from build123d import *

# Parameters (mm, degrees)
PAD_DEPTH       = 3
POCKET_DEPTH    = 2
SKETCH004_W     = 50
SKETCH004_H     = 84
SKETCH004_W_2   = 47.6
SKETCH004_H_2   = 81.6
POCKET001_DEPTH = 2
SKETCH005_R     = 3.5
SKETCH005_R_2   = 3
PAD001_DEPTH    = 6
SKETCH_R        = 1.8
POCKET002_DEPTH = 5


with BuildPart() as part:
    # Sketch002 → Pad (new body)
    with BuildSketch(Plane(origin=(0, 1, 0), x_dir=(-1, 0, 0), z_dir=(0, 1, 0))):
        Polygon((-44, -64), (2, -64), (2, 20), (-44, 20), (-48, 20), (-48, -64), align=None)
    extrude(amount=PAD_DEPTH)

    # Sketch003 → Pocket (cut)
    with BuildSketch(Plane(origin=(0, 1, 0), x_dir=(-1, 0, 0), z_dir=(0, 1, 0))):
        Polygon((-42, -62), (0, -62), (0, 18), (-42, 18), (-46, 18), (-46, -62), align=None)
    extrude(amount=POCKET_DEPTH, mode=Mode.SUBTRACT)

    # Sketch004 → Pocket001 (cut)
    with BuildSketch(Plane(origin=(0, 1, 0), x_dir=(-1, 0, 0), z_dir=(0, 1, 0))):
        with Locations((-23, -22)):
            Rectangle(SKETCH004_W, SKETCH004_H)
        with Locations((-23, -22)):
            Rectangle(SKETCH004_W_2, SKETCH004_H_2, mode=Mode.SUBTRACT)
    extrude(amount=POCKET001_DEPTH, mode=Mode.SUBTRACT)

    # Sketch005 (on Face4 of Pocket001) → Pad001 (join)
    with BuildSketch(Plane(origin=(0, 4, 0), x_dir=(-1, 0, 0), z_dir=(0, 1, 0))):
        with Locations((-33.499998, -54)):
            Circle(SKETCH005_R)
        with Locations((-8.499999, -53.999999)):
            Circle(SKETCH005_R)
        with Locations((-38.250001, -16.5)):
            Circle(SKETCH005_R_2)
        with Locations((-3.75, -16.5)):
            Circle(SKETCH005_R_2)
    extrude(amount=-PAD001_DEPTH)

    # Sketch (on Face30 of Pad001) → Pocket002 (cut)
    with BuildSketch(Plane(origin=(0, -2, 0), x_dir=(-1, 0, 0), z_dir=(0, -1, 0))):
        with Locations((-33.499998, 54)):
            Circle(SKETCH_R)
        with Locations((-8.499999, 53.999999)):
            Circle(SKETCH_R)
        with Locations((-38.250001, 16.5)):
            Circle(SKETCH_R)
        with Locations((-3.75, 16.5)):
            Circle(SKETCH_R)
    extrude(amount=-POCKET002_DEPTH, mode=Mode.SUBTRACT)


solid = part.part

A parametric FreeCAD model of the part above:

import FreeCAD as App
import Part
import Sketcher
Q = App.Units.Quantity

doc = App.newDocument("Part")
params = doc.addObject("Spreadsheet::Sheet", "Params")
for row, (alias, value) in enumerate([
    ("sketch1_width", "50 mm"),
    ("sketch1_height", "84 mm"),
    ("pad1_length", "3 mm"),
    ("sketch2_width", "46 mm"),
    ("sketch2_height", "80 mm"),
    ("pocket1_length", "2 mm"),
    ("sketch3_width", "50 mm"),
    ("sketch3_height", "84 mm"),
    ("sketch3_width2", "47.6 mm"),
    ("sketch3_height2", "81.6 mm"),
    ("pocket2_length", "2 mm"),
    ("sketch4_diameter", "7 mm"),
    ("sketch4_diameter2", "6 mm"),
    ("pad2_length", "6 mm"),
    ("sketch5_diameter", "3.6 mm"),
    ("pocket3_length", "5 mm"),
], start=1):
    params.set(f"A{row}", alias)
    params.set(f"B{row}", "=" + value)
    params.setAlias(f"B{row}", alias)

body = doc.addObject("PartDesign::Body", "Body")

# Sketch on XZ plane
sketch1 = body.newObject("Sketcher::SketchObject", "Sketch")
sketch1.AttachmentSupport = (doc.getObject("XZ_Plane"), [""])
sketch1.MapMode = "FlatFace"
sketch1.AttachmentOffset = App.Placement(App.Vector(0, 0, -1), App.Rotation())
sketch1.addGeometry([
    Part.LineSegment(App.Vector(-2, -64, 0), App.Vector(-2, 20, 0)),
    Part.LineSegment(App.Vector(-2, 20, 0), App.Vector(48, 20, 0)),
    Part.LineSegment(App.Vector(48, 20, 0), App.Vector(48, -64, 0)),
    Part.LineSegment(App.Vector(48, -64, 0), App.Vector(-2, -64, 0)),
], False)
sketch1.addConstraint([
    Sketcher.Constraint("Coincident", 0, 2, 1, 1),
    Sketcher.Constraint("Coincident", 1, 2, 2, 1),
    Sketcher.Constraint("Coincident", 2, 2, 3, 1),
    Sketcher.Constraint("Coincident", 3, 2, 0, 1),
    Sketcher.Constraint("Vertical", 0),
    Sketcher.Constraint("Horizontal", 1),
    Sketcher.Constraint("Vertical", 2),
    Sketcher.Constraint("Horizontal", 3),
    Sketcher.Constraint("DistanceX", 1, 1, 1, 2, Q("50 mm")),
    Sketcher.Constraint("DistanceY", 0, 1, 0, 2, Q("84 mm")),
    Sketcher.Constraint("DistanceX", 0, 2, -1, 1, Q("2 mm")),
    Sketcher.Constraint("DistanceY", -1, 1, 0, 2, Q("20 mm")),
])
sketch1.setExpression("Constraints[8]", "Params.sketch1_width")
sketch1.setExpression("Constraints[9]", "Params.sketch1_height")
pad1 = body.newObject("PartDesign::Pad", "Pad")
pad1.Profile = sketch1
pad1.setExpression("Length", "Params.pad1_length")
pad1.Reversed = True

# Sketch on XZ plane
sketch2 = body.newObject("Sketcher::SketchObject", "Sketch001")
sketch2.AttachmentSupport = (doc.getObject("XZ_Plane"), [""])
sketch2.MapMode = "FlatFace"
sketch2.AttachmentOffset = App.Placement(App.Vector(0, 0, -1), App.Rotation())
sketch2.addGeometry([
    Part.LineSegment(App.Vector(0, -62, 0), App.Vector(0, 18, 0)),
    Part.LineSegment(App.Vector(0, 18, 0), App.Vector(46, 18, 0)),
    Part.LineSegment(App.Vector(46, 18, 0), App.Vector(46, -62, 0)),
    Part.LineSegment(App.Vector(46, -62, 0), App.Vector(0, -62, 0)),
], False)
sketch2.addConstraint([
    Sketcher.Constraint("Coincident", 0, 2, 1, 1),
    Sketcher.Constraint("Coincident", 1, 2, 2, 1),
    Sketcher.Constraint("Coincident", 2, 2, 3, 1),
    Sketcher.Constraint("Coincident", 3, 2, 0, 1),
    Sketcher.Constraint("Vertical", 0),
    Sketcher.Constraint("Horizontal", 1),
    Sketcher.Constraint("Vertical", 2),
    Sketcher.Constraint("Horizontal", 3),
    Sketcher.Constraint("PointOnObject", 0, 2, -2),
    Sketcher.Constraint("DistanceX", 1, 1, 1, 2, Q("46 mm")),
    Sketcher.Constraint("DistanceY", 0, 1, 0, 2, Q("80 mm")),
    Sketcher.Constraint("DistanceY", -1, 1, 0, 2, Q("18 mm")),
])
sketch2.setExpression("Constraints[9]", "Params.sketch2_width")
sketch2.setExpression("Constraints[10]", "Params.sketch2_height")
pocket1 = body.newObject("PartDesign::Pocket", "Pocket")
pocket1.Profile = sketch2
pocket1.setExpression("Length", "Params.pocket1_length")

# Sketch on XZ plane
sketch3 = body.newObject("Sketcher::SketchObject", "Sketch002")
sketch3.AttachmentSupport = (doc.getObject("XZ_Plane"), [""])
sketch3.MapMode = "FlatFace"
sketch3.AttachmentOffset = App.Placement(App.Vector(0, 0, -1), App.Rotation())
sketch3.addGeometry([
    Part.LineSegment(App.Vector(48, 20, 0), App.Vector(48, -64, 0)),  # 0
    Part.LineSegment(App.Vector(48, -64, 0), App.Vector(-2, -64, 0)),  # 1
    Part.LineSegment(App.Vector(-2, -64, 0), App.Vector(-2, 20, 0)),  # 2
    Part.LineSegment(App.Vector(-2, 20, 0), App.Vector(48, 20, 0)),  # 3
    Part.LineSegment(App.Vector(-0.8, -62.8, 0), App.Vector(46.8, -62.8, 0)),  # 4
    Part.LineSegment(App.Vector(46.8, -62.8, 0), App.Vector(46.8, 18.8, 0)),  # 5
    Part.LineSegment(App.Vector(46.8, 18.8, 0), App.Vector(-0.8, 18.8, 0)),  # 6
    Part.LineSegment(App.Vector(-0.8, 18.8, 0), App.Vector(-0.8, -62.8, 0)),  # 7
], False)
sketch3.addConstraint([
    Sketcher.Constraint("Coincident", 0, 2, 1, 1),
    Sketcher.Constraint("Coincident", 1, 2, 2, 1),
    Sketcher.Constraint("Coincident", 2, 2, 3, 1),
    Sketcher.Constraint("Coincident", 3, 2, 0, 1),
    Sketcher.Constraint("Coincident", 4, 2, 5, 1),
    Sketcher.Constraint("Coincident", 5, 2, 6, 1),
    Sketcher.Constraint("Coincident", 6, 2, 7, 1),
    Sketcher.Constraint("Coincident", 7, 2, 4, 1),
    Sketcher.Constraint("Vertical", 0),
    Sketcher.Constraint("Horizontal", 1),
    Sketcher.Constraint("Vertical", 2),
    Sketcher.Constraint("Horizontal", 3),
    Sketcher.Constraint("Horizontal", 4),
    Sketcher.Constraint("Vertical", 5),
    Sketcher.Constraint("Horizontal", 6),
    Sketcher.Constraint("Vertical", 7),
    Sketcher.Constraint("DistanceX", 1, 2, 1, 1, Q("50 mm")),
    Sketcher.Constraint("DistanceY", 0, 2, 0, 1, Q("84 mm")),
    Sketcher.Constraint("DistanceX", 4, 1, 4, 2, Q("47.6 mm")),
    Sketcher.Constraint("DistanceY", 5, 1, 5, 2, Q("81.6 mm")),
    Sketcher.Constraint("DistanceX", -1, 1, 0, 2, Q("48 mm")),
    Sketcher.Constraint("DistanceY", 0, 2, -1, 1, Q("64 mm")),
    Sketcher.Constraint("DistanceX", -1, 1, 4, 2, Q("46.8 mm")),
    Sketcher.Constraint("DistanceY", 4, 2, -1, 1, Q("62.8 mm")),
])
sketch3.setExpression("Constraints[16]", "Params.sketch3_width")
sketch3.setExpression("Constraints[17]", "Params.sketch3_height")
sketch3.setExpression("Constraints[18]", "Params.sketch3_width2")
sketch3.setExpression("Constraints[19]", "Params.sketch3_height2")
pocket2 = body.newObject("PartDesign::Pocket", "Pocket001")
pocket2.Profile = sketch3
pocket2.setExpression("Length", "Params.pocket2_length")

# Sketch on XZ plane
sketch4 = body.newObject("Sketcher::SketchObject", "Sketch003")
sketch4.AttachmentSupport = (doc.getObject("XZ_Plane"), [""])
sketch4.MapMode = "FlatFace"
sketch4.AttachmentOffset = App.Placement(App.Vector(0, 0, -4), App.Rotation())
sketch4.addGeometry([
    Part.Circle(App.Vector(33.499998, -54, 0), App.Vector(0, 0, 1), 3.5),
    Part.Circle(App.Vector(8.499999, -53.999999, 0), App.Vector(0, 0, 1), 3.5),
    Part.Circle(App.Vector(38.250001, -16.5, 0), App.Vector(0, 0, 1), 3),
    Part.Circle(App.Vector(3.75, -16.5, 0), App.Vector(0, 0, 1), 3),
], False)
sketch4.addConstraint([
    Sketcher.Constraint("Equal", 0, 1),
    Sketcher.Constraint("Equal", 2, 3),
    Sketcher.Constraint("Horizontal", 0, 3, 1, 3),
    Sketcher.Constraint("Horizontal", 2, 3, 3, 3),
    Sketcher.Constraint("Diameter", 0, Q("7 mm")),
    Sketcher.Constraint("Diameter", 2, Q("6 mm")),
    Sketcher.Constraint("DistanceY", 0, 3, -1, 1, Q("54 mm")),
    Sketcher.Constraint("DistanceX", 1, 3, 0, 3, Q("24.999999 mm")),
    Sketcher.Constraint("DistanceX", -1, 1, 1, 3, Q("8.499999 mm")),
    Sketcher.Constraint("DistanceY", 2, 3, -1, 1, Q("16.5 mm")),
    Sketcher.Constraint("DistanceX", 3, 3, 2, 3, Q("34.500001 mm")),
    Sketcher.Constraint("DistanceX", -1, 1, 2, 3, Q("38.250001 mm")),
])
sketch4.setExpression("Constraints[4]", "Params.sketch4_diameter")
sketch4.setExpression("Constraints[5]", "Params.sketch4_diameter2")
pad2 = body.newObject("PartDesign::Pad", "Pad001")
pad2.Profile = sketch4
pad2.setExpression("Length", "Params.pad2_length")

# Sketch on XZ plane
sketch5 = body.newObject("Sketcher::SketchObject", "Sketch004")
sketch5.AttachmentSupport = (doc.getObject("XZ_Plane"), [""])
sketch5.MapMode = "FlatFace"
sketch5.AttachmentOffset = App.Placement(App.Vector(0, 0, 2), App.Rotation())
sketch5.addGeometry([
    Part.Circle(App.Vector(33.499998, -54, 0), App.Vector(0, 0, 1), 1.8),
    Part.Circle(App.Vector(8.499999, -53.999999, 0), App.Vector(0, 0, 1), 1.8),
    Part.Circle(App.Vector(38.250001, -16.5, 0), App.Vector(0, 0, 1), 1.8),
    Part.Circle(App.Vector(3.75, -16.5, 0), App.Vector(0, 0, 1), 1.8),
], False)
sketch5.addConstraint([
    Sketcher.Constraint("Equal", 0, 1),
    Sketcher.Constraint("Equal", 1, 2),
    Sketcher.Constraint("Equal", 2, 3),
    Sketcher.Constraint("Horizontal", 0, 3, 1, 3),
    Sketcher.Constraint("Horizontal", 2, 3, 3, 3),
    Sketcher.Constraint("Diameter", 0, Q("3.6 mm")),
    Sketcher.Constraint("DistanceY", 0, 3, -1, 1, Q("54 mm")),
    Sketcher.Constraint("DistanceX", 1, 3, 0, 3, Q("24.999999 mm")),
    Sketcher.Constraint("DistanceX", -1, 1, 1, 3, Q("8.499999 mm")),
    Sketcher.Constraint("DistanceY", 2, 3, -1, 1, Q("16.5 mm")),
    Sketcher.Constraint("DistanceX", 3, 3, 2, 3, Q("34.500001 mm")),
    Sketcher.Constraint("DistanceX", -1, 1, 2, 3, Q("38.250001 mm")),
])
sketch5.setExpression("Constraints[5]", "Params.sketch5_diameter")
pocket3 = body.newObject("PartDesign::Pocket", "Pocket002")
pocket3.Profile = sketch5
pocket3.setExpression("Length", "Params.pocket3_length")

doc.recompute()
